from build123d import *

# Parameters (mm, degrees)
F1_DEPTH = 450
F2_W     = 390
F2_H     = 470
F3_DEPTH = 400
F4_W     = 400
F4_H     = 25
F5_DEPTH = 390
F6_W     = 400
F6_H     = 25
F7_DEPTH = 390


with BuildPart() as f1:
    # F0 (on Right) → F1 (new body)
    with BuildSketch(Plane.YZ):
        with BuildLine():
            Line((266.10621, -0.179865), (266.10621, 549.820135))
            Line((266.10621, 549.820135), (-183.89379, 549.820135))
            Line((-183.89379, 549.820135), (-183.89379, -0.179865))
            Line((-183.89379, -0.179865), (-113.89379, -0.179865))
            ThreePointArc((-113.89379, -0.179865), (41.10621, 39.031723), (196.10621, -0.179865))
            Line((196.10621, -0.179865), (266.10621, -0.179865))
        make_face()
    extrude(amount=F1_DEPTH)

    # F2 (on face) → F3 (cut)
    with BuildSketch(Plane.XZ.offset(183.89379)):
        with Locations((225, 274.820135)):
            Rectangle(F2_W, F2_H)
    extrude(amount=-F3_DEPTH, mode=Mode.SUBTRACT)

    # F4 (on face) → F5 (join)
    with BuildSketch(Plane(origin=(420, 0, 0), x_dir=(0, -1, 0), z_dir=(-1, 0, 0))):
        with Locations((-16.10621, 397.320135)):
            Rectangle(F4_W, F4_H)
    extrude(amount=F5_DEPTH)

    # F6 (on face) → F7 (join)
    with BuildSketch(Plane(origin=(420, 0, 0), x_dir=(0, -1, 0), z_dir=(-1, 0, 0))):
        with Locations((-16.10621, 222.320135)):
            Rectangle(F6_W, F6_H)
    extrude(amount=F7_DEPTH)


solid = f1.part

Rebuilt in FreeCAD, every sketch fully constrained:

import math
import FreeCAD as App
import Part
import Sketcher
Q = App.Units.Quantity


def add_polygon(sketch, points):
    """Adds a closed chain of lines whose ends are joined by coincident constraints."""
    first, n = sketch.GeometryCount, len(points)
    for a, b in zip(points, points[1:] + points[:1]):
        sketch.addGeometry(Part.LineSegment(App.Vector(*a, 0), App.Vector(*b, 0)), False)
    for i in range(n):
        sketch.addConstraint(Sketcher.Constraint("Coincident", first + i, 2, first + (i + 1) % n, 1))

doc = App.newDocument("Part")
body = doc.addObject("PartDesign::Body", "Body")

# Sketch on YZ plane
sketch1 = body.newObject("Sketcher::SketchObject", "Sketch")
sketch1.AttachmentSupport = (doc.getObject("YZ_Plane"), [""])
sketch1.MapMode = "FlatFace"
sketch1.addGeometry(Part.LineSegment(App.Vector(266.10621, -0.179865, 0), App.Vector(266.10621, 549.820135, 0)), False)
sketch1.addGeometry(Part.LineSegment(App.Vector(266.10621, 549.820135, 0), App.Vector(-183.89379, 549.820135, 0)), False)
sketch1.addGeometry(Part.LineSegment(App.Vector(-183.89379, 549.820135, 0), App.Vector(-183.89379, -0.179865, 0)), False)
sketch1.addGeometry(Part.LineSegment(App.Vector(-183.89379, -0.179865, 0), App.Vector(-113.89379, -0.179865, 0)), False)
sketch1.addGeometry(Part.ArcOfCircle(Part.Circle(App.Vector(41.10621, -286.924836, 0), App.Vector(0, 0, 1), 325.956559), math.radians(61.60656), math.radians(118.39344)), False)
sketch1.addGeometry(Part.LineSegment(App.Vector(196.10621, -0.179865, 0), App.Vector(266.10621, -0.179865, 0)), False)
sketch1.addConstraint(Sketcher.Constraint("Coincident", 0, 2, 1, 1))
sketch1.addConstraint(Sketcher.Constraint("Coincident", 1, 2, 2, 1))
sketch1.addConstraint(Sketcher.Constraint("Coincident", 2, 2, 3, 1))
sketch1.addConstraint(Sketcher.Constraint("Coincident", 3, 2, 4, 2))
sketch1.addConstraint(Sketcher.Constraint("Coincident", 4, 1, 5, 1))
sketch1.addConstraint(Sketcher.Constraint("Coincident", 5, 2, 0, 1))
sketch1.addConstraint(Sketcher.Constraint("Vertical", 0))
sketch1.addConstraint(Sketcher.Constraint("Horizontal", 1))
sketch1.addConstraint(Sketcher.Constraint("Vertical", 2))
sketch1.addConstraint(Sketcher.Constraint("Horizontal", 3))
sketch1.addConstraint(Sketcher.Constraint("Horizontal", 5))
sketch1.addConstraint(Sketcher.Constraint("Horizontal", 3, 2, 4, 1))
sketch1.addConstraint(Sketcher.Constraint("Equal", 3, 5))
sketch1.addConstraint(Sketcher.Constraint("DistanceX", 1, 2, 1, 1, Q("450 mm")))
sketch1.addConstraint(Sketcher.Constraint("DistanceX", 3, 1, 3, 2, Q("70 mm")))
sketch1.addConstraint(Sketcher.Constraint("DistanceY", 0, 1, 0, 2, Q("550 mm")))
sketch1.addConstraint(Sketcher.Constraint("Radius", 4, Q("325.956559 mm")))
sketch1.addConstraint(Sketcher.Constraint("DistanceX", -1, 1, 4, 3, Q("41.10621 mm")))
sketch1.addConstraint(Sketcher.Constraint("DistanceY", 4, 3, -1, 1, Q("286.924836 mm")))
pad1 = body.newObject("PartDesign::Pad", "Pad")
pad1.Profile = sketch1
pad1.Length = 450

# Sketch on XZ plane
sketch2 = body.newObject("Sketcher::SketchObject", "Sketch001")
sketch2.AttachmentSupport = (doc.getObject("XZ_Plane"), [""])
sketch2.MapMode = "FlatFace"
sketch2.AttachmentOffset = App.Placement(App.Vector(0, 0, 183.89379), App.Rotation())
add_polygon(sketch2, [(30, 509.820135), (30, 39.820135), (420, 39.820135), (420, 509.820135)])  # lines 0-3
sketch2.addConstraint(Sketcher.Constraint("Vertical", 0))
sketch2.addConstraint(Sketcher.Constraint("Horizontal", 1))
sketch2.addConstraint(Sketcher.Constraint("Vertical", 2))
sketch2.addConstraint(Sketcher.Constraint("Horizontal", 3))
sketch2.addConstraint(Sketcher.Constraint("DistanceX", 1, 1, 1, 2, Q("390 mm")))
sketch2.addConstraint(Sketcher.Constraint("DistanceY", 0, 2, 0, 1, Q("470 mm")))
sketch2.addConstraint(Sketcher.Constraint("DistanceX", -1, 1, 0, 2, Q("30 mm")))
sketch2.addConstraint(Sketcher.Constraint("DistanceY", -1, 1, 0, 2, Q("39.820135 mm")))
pocket1 = body.newObject("PartDesign::Pocket", "Pocket")
pocket1.Profile = sketch2
pocket1.Length = 400

# Sketch on YZ plane
sketch3 = body.newObject("Sketcher::SketchObject", "Sketch002")
sketch3.AttachmentSupport = (doc.getObject("YZ_Plane"), [""])
sketch3.MapMode = "FlatFace"
sketch3.AttachmentOffset = App.Placement(App.Vector(0, 0, 420), App.Rotation())
add_polygon(sketch3, [(216.10621, 409.820135), (216.10621, 384.820135), (-183.89379, 384.820135), (-183.89379, 409.820135)])  # lines 0-3
sketch3.addConstraint(Sketcher.Constraint("Vertical", 0))
sketch3.addConstraint(Sketcher.Constraint("Horizontal", 1))
sketch3.addConstraint(Sketcher.Constraint("Vertical", 2))
sketch3.addConstraint(Sketcher.Constraint("Horizontal", 3))
sketch3.addConstraint(Sketcher.Constraint("DistanceX", 1, 2, 1, 1, Q("400 mm")))
sketch3.addConstraint(Sketcher.Constraint("DistanceY", 0, 2, 0, 1, Q("25 mm")))
sketch3.addConstraint(Sketcher.Constraint("DistanceX", -1, 1, 0, 2, Q("216.10621 mm")))
sketch3.addConstraint(Sketcher.Constraint("DistanceY", -1, 1, 0, 2, Q("384.820135 mm")))
pad2 = body.newObject("PartDesign::Pad", "Pad001")
pad2.Profile = sketch3
pad2.Length = 390
pad2.Reversed = True

# Sketch on YZ plane
sketch4 = body.newObject("Sketcher::SketchObject", "Sketch003")
sketch4.AttachmentSupport = (doc.getObject("YZ_Plane"), [""])
sketch4.MapMode = "FlatFace"
sketch4.AttachmentOffset = App.Placement(App.Vector(0, 0, 420), App.Rotation())
add_polygon(sketch4, [(216.10621, 234.820135), (216.10621, 209.820135), (-183.89379, 209.820135), (-183.89379, 234.820135)])  # lines 0-3
sketch4.addConstraint(Sketcher.Constraint("Vertical", 0))
sketch4.addConstraint(Sketcher.Constraint("Horizontal", 1))
sketch4.addConstraint(Sketcher.Constraint("Vertical", 2))
sketch4.addConstraint(Sketcher.Constraint("Horizontal", 3))
sketch4.addConstraint(Sketcher.Constraint("DistanceX", 1, 2, 1, 1, Q("400 mm")))
sketch4.addConstraint(Sketcher.Constraint("DistanceY", 0, 2, 0, 1, Q("25 mm")))
sketch4.addConstraint(Sketcher.Constraint("DistanceX", -1, 1, 0, 2, Q("216.10621 mm")))
sketch4.addConstraint(Sketcher.Constraint("DistanceY", -1, 1, 0, 2, Q("209.820135 mm")))
pad3 = body.newObject("PartDesign::Pad", "Pad002")
pad3.Profile = sketch4
pad3.Length = 390
pad3.Reversed = True

doc.recompute()
